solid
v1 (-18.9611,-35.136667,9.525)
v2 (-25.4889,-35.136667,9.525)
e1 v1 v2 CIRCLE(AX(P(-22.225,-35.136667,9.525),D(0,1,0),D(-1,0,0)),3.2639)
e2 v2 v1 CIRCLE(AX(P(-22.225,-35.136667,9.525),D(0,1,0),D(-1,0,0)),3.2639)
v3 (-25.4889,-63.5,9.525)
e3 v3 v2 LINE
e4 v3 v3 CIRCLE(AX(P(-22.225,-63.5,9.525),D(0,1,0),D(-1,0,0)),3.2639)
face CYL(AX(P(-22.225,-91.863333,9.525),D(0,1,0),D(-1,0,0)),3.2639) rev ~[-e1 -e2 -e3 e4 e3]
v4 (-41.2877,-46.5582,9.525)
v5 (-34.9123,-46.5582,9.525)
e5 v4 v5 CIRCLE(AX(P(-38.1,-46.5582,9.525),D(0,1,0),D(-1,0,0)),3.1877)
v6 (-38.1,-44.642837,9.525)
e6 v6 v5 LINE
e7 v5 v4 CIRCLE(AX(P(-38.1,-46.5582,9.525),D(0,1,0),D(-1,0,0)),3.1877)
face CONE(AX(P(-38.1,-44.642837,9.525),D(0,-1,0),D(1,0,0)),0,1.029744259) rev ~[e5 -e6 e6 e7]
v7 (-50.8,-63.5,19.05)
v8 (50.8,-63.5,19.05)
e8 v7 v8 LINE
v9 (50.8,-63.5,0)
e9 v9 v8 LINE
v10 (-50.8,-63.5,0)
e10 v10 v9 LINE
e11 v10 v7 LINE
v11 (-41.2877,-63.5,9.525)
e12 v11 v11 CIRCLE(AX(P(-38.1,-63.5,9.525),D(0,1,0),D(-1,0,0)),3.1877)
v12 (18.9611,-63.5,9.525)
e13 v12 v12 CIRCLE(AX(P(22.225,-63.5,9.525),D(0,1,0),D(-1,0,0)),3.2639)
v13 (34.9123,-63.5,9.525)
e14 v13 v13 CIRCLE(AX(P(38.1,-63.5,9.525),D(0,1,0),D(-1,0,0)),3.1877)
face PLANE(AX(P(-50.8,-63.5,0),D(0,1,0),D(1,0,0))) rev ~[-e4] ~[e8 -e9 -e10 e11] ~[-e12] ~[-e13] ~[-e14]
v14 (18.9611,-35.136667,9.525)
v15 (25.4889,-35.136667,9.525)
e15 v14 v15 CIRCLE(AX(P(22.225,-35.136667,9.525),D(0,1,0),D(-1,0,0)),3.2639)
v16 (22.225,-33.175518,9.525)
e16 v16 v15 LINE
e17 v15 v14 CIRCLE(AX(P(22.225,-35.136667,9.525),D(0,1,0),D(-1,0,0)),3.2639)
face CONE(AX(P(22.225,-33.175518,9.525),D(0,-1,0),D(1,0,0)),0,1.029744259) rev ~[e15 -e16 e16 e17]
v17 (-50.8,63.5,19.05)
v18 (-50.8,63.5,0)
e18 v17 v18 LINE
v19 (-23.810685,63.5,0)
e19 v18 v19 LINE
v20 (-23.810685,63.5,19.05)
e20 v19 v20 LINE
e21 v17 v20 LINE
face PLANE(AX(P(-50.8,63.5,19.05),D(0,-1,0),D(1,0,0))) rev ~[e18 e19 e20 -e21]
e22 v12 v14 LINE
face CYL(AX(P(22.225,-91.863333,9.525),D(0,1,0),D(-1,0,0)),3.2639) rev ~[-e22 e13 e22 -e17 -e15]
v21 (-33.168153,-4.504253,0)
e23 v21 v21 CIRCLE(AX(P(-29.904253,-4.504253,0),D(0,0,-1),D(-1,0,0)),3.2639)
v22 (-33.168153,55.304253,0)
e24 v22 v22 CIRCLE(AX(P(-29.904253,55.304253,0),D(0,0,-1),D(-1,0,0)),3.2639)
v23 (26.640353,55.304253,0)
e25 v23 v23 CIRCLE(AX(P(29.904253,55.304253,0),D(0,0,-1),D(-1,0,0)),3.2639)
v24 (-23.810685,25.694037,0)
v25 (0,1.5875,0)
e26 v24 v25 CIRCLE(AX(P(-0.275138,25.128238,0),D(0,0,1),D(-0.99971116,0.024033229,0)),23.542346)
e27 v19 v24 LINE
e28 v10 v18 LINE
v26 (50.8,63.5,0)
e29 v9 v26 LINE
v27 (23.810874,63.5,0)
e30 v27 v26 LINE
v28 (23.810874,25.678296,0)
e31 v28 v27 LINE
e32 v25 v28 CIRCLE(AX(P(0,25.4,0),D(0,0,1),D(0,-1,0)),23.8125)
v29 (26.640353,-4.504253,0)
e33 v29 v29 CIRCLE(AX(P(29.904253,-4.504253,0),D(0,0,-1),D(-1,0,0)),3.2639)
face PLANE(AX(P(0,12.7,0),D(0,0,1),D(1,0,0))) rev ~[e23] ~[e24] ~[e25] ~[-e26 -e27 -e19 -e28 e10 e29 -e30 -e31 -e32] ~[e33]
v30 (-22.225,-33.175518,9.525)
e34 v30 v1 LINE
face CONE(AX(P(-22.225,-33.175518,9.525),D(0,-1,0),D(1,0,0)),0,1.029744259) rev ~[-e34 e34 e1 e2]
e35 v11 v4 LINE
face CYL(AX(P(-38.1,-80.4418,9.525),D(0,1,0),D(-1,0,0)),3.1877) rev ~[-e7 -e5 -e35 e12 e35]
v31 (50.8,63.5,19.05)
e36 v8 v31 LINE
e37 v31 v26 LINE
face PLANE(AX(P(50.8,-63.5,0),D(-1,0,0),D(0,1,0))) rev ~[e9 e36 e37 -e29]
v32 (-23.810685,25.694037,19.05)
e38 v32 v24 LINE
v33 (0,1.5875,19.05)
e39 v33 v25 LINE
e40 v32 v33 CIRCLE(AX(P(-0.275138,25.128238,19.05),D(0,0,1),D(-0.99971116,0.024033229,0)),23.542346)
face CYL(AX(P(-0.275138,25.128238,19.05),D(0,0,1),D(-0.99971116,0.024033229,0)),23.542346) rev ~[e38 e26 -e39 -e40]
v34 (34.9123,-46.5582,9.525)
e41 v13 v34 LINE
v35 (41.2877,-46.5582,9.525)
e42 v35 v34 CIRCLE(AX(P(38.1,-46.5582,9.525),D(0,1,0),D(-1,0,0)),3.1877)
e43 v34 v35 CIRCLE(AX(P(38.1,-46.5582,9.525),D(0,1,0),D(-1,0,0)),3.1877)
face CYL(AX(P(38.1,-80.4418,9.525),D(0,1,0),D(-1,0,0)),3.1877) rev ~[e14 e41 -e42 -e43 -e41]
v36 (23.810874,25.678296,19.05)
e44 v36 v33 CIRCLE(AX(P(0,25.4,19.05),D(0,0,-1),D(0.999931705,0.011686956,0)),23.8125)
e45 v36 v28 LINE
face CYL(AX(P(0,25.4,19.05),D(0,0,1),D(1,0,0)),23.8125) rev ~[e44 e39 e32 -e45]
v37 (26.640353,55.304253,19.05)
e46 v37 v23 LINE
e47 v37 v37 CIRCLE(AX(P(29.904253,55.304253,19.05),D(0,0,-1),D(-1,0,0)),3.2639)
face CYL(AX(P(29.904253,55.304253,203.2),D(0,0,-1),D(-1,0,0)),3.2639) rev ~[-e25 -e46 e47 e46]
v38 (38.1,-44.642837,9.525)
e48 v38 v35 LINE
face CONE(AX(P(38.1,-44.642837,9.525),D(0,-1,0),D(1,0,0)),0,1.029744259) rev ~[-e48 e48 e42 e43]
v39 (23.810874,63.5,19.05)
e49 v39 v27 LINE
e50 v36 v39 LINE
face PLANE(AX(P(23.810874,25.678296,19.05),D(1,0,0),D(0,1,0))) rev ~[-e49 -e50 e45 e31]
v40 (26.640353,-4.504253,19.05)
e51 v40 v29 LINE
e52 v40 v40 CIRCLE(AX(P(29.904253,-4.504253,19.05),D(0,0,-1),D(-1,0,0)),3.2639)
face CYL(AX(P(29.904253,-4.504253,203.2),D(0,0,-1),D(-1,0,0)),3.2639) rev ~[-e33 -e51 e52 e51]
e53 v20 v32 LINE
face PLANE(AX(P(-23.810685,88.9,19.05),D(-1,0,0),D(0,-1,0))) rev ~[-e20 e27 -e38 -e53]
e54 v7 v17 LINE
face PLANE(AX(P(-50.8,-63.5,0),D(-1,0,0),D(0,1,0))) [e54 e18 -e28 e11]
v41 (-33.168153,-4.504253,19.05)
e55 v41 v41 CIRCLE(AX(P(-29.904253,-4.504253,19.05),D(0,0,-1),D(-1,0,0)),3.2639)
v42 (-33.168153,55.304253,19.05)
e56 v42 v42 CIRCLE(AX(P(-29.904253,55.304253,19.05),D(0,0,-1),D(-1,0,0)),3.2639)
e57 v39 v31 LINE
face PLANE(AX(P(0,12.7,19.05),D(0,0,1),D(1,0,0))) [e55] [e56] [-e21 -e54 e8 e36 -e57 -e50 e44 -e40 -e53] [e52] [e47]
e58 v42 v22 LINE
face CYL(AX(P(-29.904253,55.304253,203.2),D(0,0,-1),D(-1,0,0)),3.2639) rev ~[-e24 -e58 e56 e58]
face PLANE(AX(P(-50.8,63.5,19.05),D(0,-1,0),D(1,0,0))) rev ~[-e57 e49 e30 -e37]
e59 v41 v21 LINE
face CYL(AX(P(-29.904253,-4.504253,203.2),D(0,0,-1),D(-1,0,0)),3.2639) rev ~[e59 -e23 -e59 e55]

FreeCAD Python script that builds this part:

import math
import FreeCAD as App
import Part
import Sketcher
Q = App.Units.Quantity

doc = App.newDocument("Part")
body = doc.addObject("PartDesign::Body", "Body")

# Sketch on XY plane
sketch1 = body.newObject("Sketcher::SketchObject", "Sketch")
sketch1.AttachmentSupport = (doc.getObject("XY_Plane"), [""])
sketch1.MapMode = "FlatFace"
sketch1.addGeometry(Part.LineSegment(App.Vector(-51, 89, 0), App.Vector(-51, -64, 0)), False)
sketch1.addGeometry(Part.LineSegment(App.Vector(-51, -64, 0), App.Vector(51, -64, 0)), False)
sketch1.addGeometry(Part.LineSegment(App.Vector(51, -64, 0), App.Vector(51, 89, 0)), False)
sketch1.addGeometry(Part.LineSegment(App.Vector(51, 89, 0), App.Vector(-51, 89, 0)), False)
sketch1.addConstraint(Sketcher.Constraint("Coincident", 0, 2, 1, 1))
sketch1.addConstraint(Sketcher.Constraint("Coincident", 1, 2, 2, 1))
sketch1.addConstraint(Sketcher.Constraint("Coincident", 2, 2, 3, 1))
sketch1.addConstraint(Sketcher.Constraint("Coincident", 3, 2, 0, 1))
sketch1.addConstraint(Sketcher.Constraint("Vertical", 0))
sketch1.addConstraint(Sketcher.Constraint("Horizontal", 1))
sketch1.addConstraint(Sketcher.Constraint("Vertical", 2))
sketch1.addConstraint(Sketcher.Constraint("Horizontal", 3))
sketch1.addConstraint(Sketcher.Constraint("DistanceX", 1, 1, 1, 2, Q("4 in")))
sketch1.addConstraint(Sketcher.Constraint("DistanceY", 0, 2, 0, 1, Q("6 in")))
sketch1.addConstraint(Sketcher.Constraint("DistanceX", 0, 2, -1, 1, Q("2 in")))
sketch1.addConstraint(Sketcher.Constraint("DistanceY", 0, 2, -1, 1, Q("2.5 in")))
pad1 = body.newObject("PartDesign::Pad", "Pad")
pad1.Profile = sketch1
pad1.Length = Q("0.75 in")

# Sketch on XY plane
sketch2 = body.newObject("Sketcher::SketchObject", "Sketch001")
sketch2.AttachmentSupport = (doc.getObject("XY_Plane"), [""])
sketch2.MapMode = "FlatFace"
sketch2.AttachmentOffset = App.Placement(App.Vector(0, 0, 0.75 * 25.4), App.Rotation())
sketch2.addGeometry(Part.Circle(App.Vector(-29.9, 55.3, 0), App.Vector(0, 0, 1), 3.3), False)
sketch2.addGeometry(Part.Circle(App.Vector(29.9, 55.3, 0), App.Vector(0, 0, 1), 3.3), False)
sketch2.addGeometry(Part.Circle(App.Vector(29.9, -4.5, 0), App.Vector(0, 0, 1), 3.3), False)
sketch2.addGeometry(Part.Circle(App.Vector(-29.9, -4.5, 0), App.Vector(0, 0, 1), 3.3), False)
sketch2.addConstraint(Sketcher.Constraint("Equal", 0, 1))
sketch2.addConstraint(Sketcher.Constraint("Equal", 1, 2))
sketch2.addConstraint(Sketcher.Constraint("Equal", 2, 3))
sketch2.addConstraint(Sketcher.Constraint("Symmetric", 0, 3, 1, 3, -2))
sketch2.addConstraint(Sketcher.Constraint("Symmetric", 2, 3, 3, 3, -2))
sketch2.addConstraint(Sketcher.Constraint("Vertical", 1, 3, 2, 3))
sketch2.addConstraint(Sketcher.Constraint("Diameter", 0, Q("0.257 in")))
sketch2.addConstraint(Sketcher.Constraint("DistanceX", 0, 3, -1, 1, Q("29.904253 mm")))
sketch2.addConstraint(Sketcher.Constraint("DistanceY", -1, 1, 0, 3, Q("55.304253 mm")))
sketch2.addConstraint(Sketcher.Constraint("DistanceY", 2, 3, -1, 1, Q("4.504253 mm")))
doc.recompute()
hole = body.newObject("PartDesign::Hole", "Hole")
hole.Profile = sketch2
hole.ThreadType = "None"
hole.Diameter = Q("0.257 in")
hole.DepthType = "ThroughAll"

# Sketch on XY plane
sketch3 = body.newObject("Sketcher::SketchObject", "Sketch002")
sketch3.AttachmentSupport = (doc.getObject("XY_Plane"), [""])
sketch3.MapMode = "FlatFace"
sketch3.AttachmentOffset = App.Placement(App.Vector(0, 0, 0.75 * 25.4), App.Rotation())
sketch3.addGeometry(Part.Circle(App.Vector(0, 25, 0), App.Vector(0, 0, 1), 24), False)
sketch3.addConstraint(Sketcher.Constraint("PointOnObject", 0, 3, -2))
sketch3.addConstraint(Sketcher.Constraint("Diameter", 0, Q("1.875 in")))
sketch3.addConstraint(Sketcher.Constraint("DistanceY", -1, 1, 0, 3, Q("1 in")))
pocket1 = body.newObject("PartDesign::Pocket", "Pocket")
pocket1.Profile = sketch3
pocket1.Type = "ThroughAll"

# Sketch on XY plane
sketch4 = body.newObject("Sketcher::SketchObject", "Sketch003")
sketch4.AttachmentSupport = (doc.getObject("XY_Plane"), [""])
sketch4.MapMode = "FlatFace"
sketch4.AttachmentOffset = App.Placement(App.Vector(0, 0, 0.75 * 25.4), App.Rotation())
sketch4.addGeometry(Part.LineSegment(App.Vector(-24, 89, 0), App.Vector(-24, 26, 0)), False)
sketch4.addGeometry(Part.ArcOfCircle(Part.Circle(App.Vector(0, 25, 0), App.Vector(0, 0, 1), 24), math.radians(179), math.radians(271)), False)
sketch4.addGeometry(Part.ArcOfCircle(Part.Circle(App.Vector(0, 26, 0), App.Vector(0, 0, 1), 24), math.radians(-89), math.radians(0)), False)
sketch4.addGeometry(Part.LineSegment(App.Vector(24, 26, 0), App.Vector(24, 89, 0)), False)
sketch4.addGeometry(Part.LineSegment(App.Vector(24, 89, 0), App.Vector(-24, 89, 0)), False)
sketch4.addConstraint(Sketcher.Constraint("Coincident", 0, 2, 1, 1))
sketch4.addConstraint(Sketcher.Constraint("Tangent", 1, 2, 2, 1))
sketch4.addConstraint(Sketcher.Constraint("Tangent", 2, 2, 3, 1))
sketch4.addConstraint(Sketcher.Constraint("Coincident", 3, 2, 4, 1))
sketch4.addConstraint(Sketcher.Constraint("Coincident", 4, 2, 0, 1))
sketch4.addConstraint(Sketcher.Constraint("Vertical", 0))
sketch4.addConstraint(Sketcher.Constraint("Vertical", 3))
sketch4.addConstraint(Sketcher.Constraint("Horizontal", 4))
sketch4.addConstraint(Sketcher.Constraint("PointOnObject", 1, 2, -2))
sketch4.addConstraint(Sketcher.Constraint("DistanceY", -1, 1, 3, 2, Q("3.5 in")))
sketch4.addConstraint(Sketcher.Constraint("DistanceY", -1, 1, 1, 2, Q("0.0625 in")))
sketch4.addConstraint(Sketcher.Constraint("Radius", 2, Q("24.092441 mm")))
sketch4.addConstraint(Sketcher.Constraint("Radius", 1, Q("23.542346 mm")))
sketch4.addConstraint(Sketcher.Constraint("DistanceX", 4, 2, 4, 1, Q("47.621558 mm")))
sketch4.addConstraint(Sketcher.Constraint("DistanceY", 1, 3, 0, 2, Q("0.565799 mm")))
pocket2 = body.newObject("PartDesign::Pocket", "Pocket001")
pocket2.Profile = sketch4
pocket2.Type = "ThroughAll"

# Sketch on XY plane
sketch5 = body.newObject("Sketcher::SketchObject", "Sketch004")
sketch5.AttachmentSupport = (doc.getObject("XY_Plane"), [""])
sketch5.MapMode = "FlatFace"
sketch5.AttachmentOffset = App.Placement(App.Vector(0, 0, 0.75 * 25.4), App.Rotation())
sketch5.addGeometry(Part.LineSegment(App.Vector(-51, 89, 0), App.Vector(-51, 64, 0)), False)
sketch5.addGeometry(Part.LineSegment(App.Vector(-51, 64, 0), App.Vector(51, 64, 0)), False)
sketch5.addGeometry(Part.LineSegment(App.Vector(51, 64, 0), App.Vector(51, 89, 0)), False)
sketch5.addGeometry(Part.LineSegment(App.Vector(51, 89, 0), App.Vector(-51, 89, 0)), False)
sketch5.addConstraint(Sketcher.Constraint("Coincident", 0, 2, 1, 1))
sketch5.addConstraint(Sketcher.Constraint("Coincident", 1, 2, 2, 1))
sketch5.addConstraint(Sketcher.Constraint("Coincident", 2, 2, 3, 1))
sketch5.addConstraint(Sketcher.Constraint("Coincident", 3, 2, 0, 1))
sketch5.addConstraint(Sketcher.Constraint("Vertical", 0))
sketch5.addConstraint(Sketcher.Constraint("Horizontal", 1))
sketch5.addConstraint(Sketcher.Constraint("Vertical", 2))
sketch5.addConstraint(Sketcher.Constraint("Horizontal", 3))
sketch5.addConstraint(Sketcher.Constraint("DistanceX", 1, 1, 1, 2, Q("4 in")))
sketch5.addConstraint(Sketcher.Constraint("DistanceY", 0, 2, 0, 1, Q("1 in")))
sketch5.addConstraint(Sketcher.Constraint("DistanceX", 0, 2, -1, 1, Q("2 in")))
sketch5.addConstraint(Sketcher.Constraint("DistanceY", -1, 1, 0, 2, Q("2.5 in")))
pocket3 = body.newObject("PartDesign::Pocket", "Pocket002")
pocket3.Profile = sketch5
pocket3.Type = "ThroughAll"

# Sketch on XZ plane
sketch6 = body.newObject("Sketcher::SketchObject", "Sketch005")
sketch6.AttachmentSupport = (doc.getObject("XZ_Plane"), [""])
sketch6.MapMode = "FlatFace"
sketch6.AttachmentOffset = App.Placement(App.Vector(0, 0, 2.5 * 25.4), App.Rotation())
sketch6.addGeometry(Part.Circle(App.Vector(-38.1, 9.5, 0), App.Vector(0, 0, 1), 3.2), False)
sketch6.addGeometry(Part.Circle(App.Vector(38.1, 9.5, 0), App.Vector(0, 0, 1), 3.2), False)
sketch6.addConstraint(Sketcher.Constraint("Equal", 0, 1))
sketch6.addConstraint(Sketcher.Constraint("Symmetric", 0, 3, 1, 3, -2))
sketch6.addConstraint(Sketcher.Constraint("Diameter", 0, Q("0.251 in")))
sketch6.addConstraint(Sketcher.Constraint("DistanceX", 0, 3, 1, 3, Q("3 in")))
sketch6.addConstraint(Sketcher.Constraint("DistanceY", -1, 1, 0, 3, Q("0.375 in")))
doc.recompute()
hole2 = body.newObject("PartDesign::Hole", "Hole001")
hole2.Profile = sketch6
hole2.ThreadType = "None"
hole2.Diameter = Q("0.251 in")
hole2.DepthType = "Dimension"
hole2.Depth = Q("0.667 in")
hole2.DrillPoint = "Angled"
hole2.DrillPointAngle = 118

# Sketch on XZ plane
sketch7 = body.newObject("Sketcher::SketchObject", "Sketch006")
sketch7.AttachmentSupport = (doc.getObject("XZ_Plane"), [""])
sketch7.MapMode = "FlatFace"
sketch7.AttachmentOffset = App.Placement(App.Vector(0, 0, 2.5 * 25.4), App.Rotation())
sketch7.addGeometry(Part.Circle(App.Vector(-22.2, 9.5, 0), App.Vector(0, 0, 1), 3.3), False)
sketch7.addGeometry(Part.Circle(App.Vector(22.2, 9.5, 0), App.Vector(0, 0, 1), 3.3), False)
sketch7.addConstraint(Sketcher.Constraint("Equal", 0, 1))
sketch7.addConstraint(Sketcher.Constraint("Symmetric", 0, 3, 1, 3, -2))
sketch7.addConstraint(Sketcher.Constraint("Diameter", 0, Q("0.257 in")))
sketch7.addConstraint(Sketcher.Constraint("DistanceX", 0, 3, 1, 3, Q("1.75 in")))
sketch7.addConstraint(Sketcher.Constraint("DistanceY", -1, 1, 0, 3, Q("0.375 in")))
doc.recompute()
hole3 = body.newObject("PartDesign::Hole", "Hole002")
hole3.Profile = sketch7
hole3.ThreadType = "None"
hole3.Diameter = Q("0.257 in")
hole3.DepthType = "Dimension"
hole3.Depth = 28.363333
hole3.DrillPoint = "Angled"
hole3.DrillPointAngle = 118

doc.recompute()
